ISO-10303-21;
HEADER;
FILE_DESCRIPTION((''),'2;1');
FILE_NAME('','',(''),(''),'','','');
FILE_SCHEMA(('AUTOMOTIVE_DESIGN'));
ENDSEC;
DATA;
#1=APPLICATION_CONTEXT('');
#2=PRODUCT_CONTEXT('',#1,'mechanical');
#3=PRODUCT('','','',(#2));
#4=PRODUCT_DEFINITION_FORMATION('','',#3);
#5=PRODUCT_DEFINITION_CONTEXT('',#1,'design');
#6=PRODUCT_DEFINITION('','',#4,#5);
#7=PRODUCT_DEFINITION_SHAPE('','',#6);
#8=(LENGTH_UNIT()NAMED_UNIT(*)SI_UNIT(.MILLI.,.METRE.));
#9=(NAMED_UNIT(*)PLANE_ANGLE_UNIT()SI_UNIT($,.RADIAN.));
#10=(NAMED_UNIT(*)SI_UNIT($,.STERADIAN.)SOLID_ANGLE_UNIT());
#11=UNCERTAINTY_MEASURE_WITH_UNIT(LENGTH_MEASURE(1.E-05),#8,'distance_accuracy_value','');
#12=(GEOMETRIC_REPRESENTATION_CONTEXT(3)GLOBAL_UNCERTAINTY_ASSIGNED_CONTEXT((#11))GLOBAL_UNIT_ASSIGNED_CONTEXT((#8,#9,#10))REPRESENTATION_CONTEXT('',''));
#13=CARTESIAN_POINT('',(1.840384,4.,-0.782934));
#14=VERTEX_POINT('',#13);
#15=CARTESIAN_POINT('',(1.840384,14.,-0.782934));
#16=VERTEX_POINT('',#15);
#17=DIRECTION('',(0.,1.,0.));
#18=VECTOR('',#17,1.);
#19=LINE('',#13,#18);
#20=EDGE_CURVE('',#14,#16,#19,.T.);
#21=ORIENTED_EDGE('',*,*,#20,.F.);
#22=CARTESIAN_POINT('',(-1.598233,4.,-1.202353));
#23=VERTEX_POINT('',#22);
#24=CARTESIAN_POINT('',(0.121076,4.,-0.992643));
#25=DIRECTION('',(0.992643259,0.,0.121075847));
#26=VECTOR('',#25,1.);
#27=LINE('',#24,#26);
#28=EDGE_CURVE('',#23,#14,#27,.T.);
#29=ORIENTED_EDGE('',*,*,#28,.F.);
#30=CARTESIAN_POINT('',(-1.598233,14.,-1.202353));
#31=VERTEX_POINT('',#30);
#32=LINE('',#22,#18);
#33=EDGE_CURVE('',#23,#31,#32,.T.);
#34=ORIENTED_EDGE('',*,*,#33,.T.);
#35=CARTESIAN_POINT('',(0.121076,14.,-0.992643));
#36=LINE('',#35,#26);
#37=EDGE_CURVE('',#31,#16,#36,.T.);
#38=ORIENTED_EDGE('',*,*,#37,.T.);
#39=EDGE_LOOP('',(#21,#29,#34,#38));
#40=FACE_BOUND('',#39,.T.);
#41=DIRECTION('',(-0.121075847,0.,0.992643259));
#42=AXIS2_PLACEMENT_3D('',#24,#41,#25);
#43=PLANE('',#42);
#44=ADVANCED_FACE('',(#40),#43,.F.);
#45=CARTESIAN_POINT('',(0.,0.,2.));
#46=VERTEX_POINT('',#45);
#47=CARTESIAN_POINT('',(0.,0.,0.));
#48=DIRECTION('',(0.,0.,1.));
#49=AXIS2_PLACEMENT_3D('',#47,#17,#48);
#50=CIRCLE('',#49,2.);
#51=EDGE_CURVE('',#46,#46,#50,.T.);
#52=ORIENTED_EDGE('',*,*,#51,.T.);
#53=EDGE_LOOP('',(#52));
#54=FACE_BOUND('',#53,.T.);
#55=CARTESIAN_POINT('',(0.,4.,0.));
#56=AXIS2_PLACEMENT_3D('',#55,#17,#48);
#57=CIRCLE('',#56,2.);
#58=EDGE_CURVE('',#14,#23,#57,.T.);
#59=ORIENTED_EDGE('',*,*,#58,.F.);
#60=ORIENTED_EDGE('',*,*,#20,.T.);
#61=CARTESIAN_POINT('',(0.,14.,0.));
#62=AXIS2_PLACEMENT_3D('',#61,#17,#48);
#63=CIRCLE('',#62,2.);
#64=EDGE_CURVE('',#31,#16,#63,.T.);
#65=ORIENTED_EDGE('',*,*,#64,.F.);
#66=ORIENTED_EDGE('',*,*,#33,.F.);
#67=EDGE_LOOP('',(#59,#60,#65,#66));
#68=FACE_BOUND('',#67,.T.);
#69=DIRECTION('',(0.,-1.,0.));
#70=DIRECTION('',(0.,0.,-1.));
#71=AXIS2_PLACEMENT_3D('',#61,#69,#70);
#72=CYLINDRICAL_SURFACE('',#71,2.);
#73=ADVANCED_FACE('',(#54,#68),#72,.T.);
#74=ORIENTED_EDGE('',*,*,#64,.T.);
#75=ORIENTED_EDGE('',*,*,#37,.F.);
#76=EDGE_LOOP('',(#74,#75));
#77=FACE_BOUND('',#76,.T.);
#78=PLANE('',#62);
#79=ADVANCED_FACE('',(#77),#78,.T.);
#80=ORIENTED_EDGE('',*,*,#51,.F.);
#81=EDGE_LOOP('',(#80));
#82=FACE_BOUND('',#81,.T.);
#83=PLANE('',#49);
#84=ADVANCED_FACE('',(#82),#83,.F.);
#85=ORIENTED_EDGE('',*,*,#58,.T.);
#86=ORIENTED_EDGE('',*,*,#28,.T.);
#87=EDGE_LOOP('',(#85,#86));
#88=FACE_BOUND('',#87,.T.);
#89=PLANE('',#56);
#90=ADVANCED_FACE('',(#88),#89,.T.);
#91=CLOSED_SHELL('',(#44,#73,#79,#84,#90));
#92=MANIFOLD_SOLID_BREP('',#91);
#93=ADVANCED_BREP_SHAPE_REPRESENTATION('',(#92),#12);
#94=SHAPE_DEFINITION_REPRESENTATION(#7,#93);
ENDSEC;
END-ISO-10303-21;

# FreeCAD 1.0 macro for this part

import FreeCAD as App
import Part
import Sketcher
from FreeCAD import Vector


def add_polygon(sketch, points):
    """Adds a closed chain of lines whose ends are joined by coincident constraints."""
    first, n = sketch.GeometryCount, len(points)
    for a, b in zip(points, points[1:] + points[:1]):
        sketch.addGeometry(Part.LineSegment(App.Vector(*a, 0), App.Vector(*b, 0)), False)
    for i in range(n):
        sketch.addConstraint(Sketcher.Constraint("Coincident", first + i, 2, first + (i + 1) % n, 1))

doc = App.newDocument("Part")
body = doc.addObject("PartDesign::Body", "Body")

# Sketch on XZ plane
sketch1 = doc.addObject("Sketcher::SketchObject", "Sketch")
body.addObject(sketch1)
sketch1.AttachmentSupport = (doc.XZ_Plane, [""])
sketch1.MapMode = "FlatFace"
sketch1.addGeometry(Part.Circle(Vector(0, 0, 0), Vector(0, 0, 1), 2), False)
sketch1.addConstraint([
    Sketcher.Constraint("Coincident", 0, 3, -1, 1),
    Sketcher.Constraint("Diameter", 0, 4.0),
])
pad1 = doc.addObject("PartDesign::Pad", "Pad")
body.addObject(pad1)
pad1.Profile = sketch1
pad1.Length = 14
pad1.Reversed = True

# Sketch on XZ plane
sketch2 = doc.addObject("Sketcher::SketchObject", "Sketch001")
body.addObject(sketch2)
sketch2.AttachmentSupport = (doc.XZ_Plane, [""])
sketch2.MapMode = "FlatFace"
sketch2.AttachmentOffset = App.Placement(Vector(0, 0, -14), App.Rotation())
add_polygon(sketch2, [(-21.087554, -3.579527), (-1.598233, -1.202353), (1.840384, -0.782934), (21.329706, 1.594241), (26.084054, -37.384402), (-16.333205, -42.55817)])  # lines 0-5
sketch2.addConstraint([
    Sketcher.Constraint("Parallel", 0, 1),
    Sketcher.Constraint("Parallel", 1, 2),
    Sketcher.Constraint("Perpendicular", 2, 3),
    Sketcher.Constraint("Perpendicular", 3, 4),
    Sketcher.Constraint("Perpendicular", 4, 5),
    Sketcher.Constraint("Equal", 0, 2),
    Sketcher.Constraint("Distance", 1, 3.464102),
    Sketcher.Constraint("Distance", 0, 19.633762),
    Sketcher.Constraint("DistanceY", -1, 1, 2, 2, 1.594241),
    Sketcher.Constraint("DistanceY", 4, 2, -1, 1, 42.55817),
    Sketcher.Constraint("DistanceY", 0, 2, 1, 2, 0.419419),
    Sketcher.Constraint("DistanceX", 0, 2, -1, 1, 1.598233),
])
pocket1 = doc.addObject("PartDesign::Pocket", "Pocket")
body.addObject(pocket1)
pocket1.Profile = sketch2
pocket1.Length = 10
pocket1.Reversed = True

doc.recompute()
